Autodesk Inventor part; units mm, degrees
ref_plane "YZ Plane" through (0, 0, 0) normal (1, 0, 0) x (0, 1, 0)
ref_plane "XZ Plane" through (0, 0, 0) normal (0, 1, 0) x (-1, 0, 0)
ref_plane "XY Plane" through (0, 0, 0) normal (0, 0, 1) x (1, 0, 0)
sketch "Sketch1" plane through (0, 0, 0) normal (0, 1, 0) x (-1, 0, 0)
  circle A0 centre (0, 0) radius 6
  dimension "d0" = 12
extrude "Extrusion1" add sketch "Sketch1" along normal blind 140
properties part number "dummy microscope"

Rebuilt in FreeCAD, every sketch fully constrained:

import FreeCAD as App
import Part
import Sketcher

doc = App.newDocument("Part")
body = doc.addObject("PartDesign::Body", "Body")

sketch1 = doc.addObject("Sketcher::SketchObject", "Sketch")
body.addObject(sketch1)
sketch1.AttachmentSupport = (doc.XZ_Plane, [""])
sketch1.MapMode = "FlatFace"
sketch1.addGeometry(Part.Circle(App.Vector(0, 0, 0), App.Vector(0, 0, 1), 6), False)
sketch1.addConstraint([
    Sketcher.Constraint("Coincident", 0, 3, -1, 1),
    Sketcher.Constraint("Diameter", 0, 12.0),
])
pad1 = doc.addObject("PartDesign::Pad", "Pad")
body.addObject(pad1)
pad1.Profile = sketch1
pad1.Length = 140
pad1.Reversed = True

doc.recompute()
